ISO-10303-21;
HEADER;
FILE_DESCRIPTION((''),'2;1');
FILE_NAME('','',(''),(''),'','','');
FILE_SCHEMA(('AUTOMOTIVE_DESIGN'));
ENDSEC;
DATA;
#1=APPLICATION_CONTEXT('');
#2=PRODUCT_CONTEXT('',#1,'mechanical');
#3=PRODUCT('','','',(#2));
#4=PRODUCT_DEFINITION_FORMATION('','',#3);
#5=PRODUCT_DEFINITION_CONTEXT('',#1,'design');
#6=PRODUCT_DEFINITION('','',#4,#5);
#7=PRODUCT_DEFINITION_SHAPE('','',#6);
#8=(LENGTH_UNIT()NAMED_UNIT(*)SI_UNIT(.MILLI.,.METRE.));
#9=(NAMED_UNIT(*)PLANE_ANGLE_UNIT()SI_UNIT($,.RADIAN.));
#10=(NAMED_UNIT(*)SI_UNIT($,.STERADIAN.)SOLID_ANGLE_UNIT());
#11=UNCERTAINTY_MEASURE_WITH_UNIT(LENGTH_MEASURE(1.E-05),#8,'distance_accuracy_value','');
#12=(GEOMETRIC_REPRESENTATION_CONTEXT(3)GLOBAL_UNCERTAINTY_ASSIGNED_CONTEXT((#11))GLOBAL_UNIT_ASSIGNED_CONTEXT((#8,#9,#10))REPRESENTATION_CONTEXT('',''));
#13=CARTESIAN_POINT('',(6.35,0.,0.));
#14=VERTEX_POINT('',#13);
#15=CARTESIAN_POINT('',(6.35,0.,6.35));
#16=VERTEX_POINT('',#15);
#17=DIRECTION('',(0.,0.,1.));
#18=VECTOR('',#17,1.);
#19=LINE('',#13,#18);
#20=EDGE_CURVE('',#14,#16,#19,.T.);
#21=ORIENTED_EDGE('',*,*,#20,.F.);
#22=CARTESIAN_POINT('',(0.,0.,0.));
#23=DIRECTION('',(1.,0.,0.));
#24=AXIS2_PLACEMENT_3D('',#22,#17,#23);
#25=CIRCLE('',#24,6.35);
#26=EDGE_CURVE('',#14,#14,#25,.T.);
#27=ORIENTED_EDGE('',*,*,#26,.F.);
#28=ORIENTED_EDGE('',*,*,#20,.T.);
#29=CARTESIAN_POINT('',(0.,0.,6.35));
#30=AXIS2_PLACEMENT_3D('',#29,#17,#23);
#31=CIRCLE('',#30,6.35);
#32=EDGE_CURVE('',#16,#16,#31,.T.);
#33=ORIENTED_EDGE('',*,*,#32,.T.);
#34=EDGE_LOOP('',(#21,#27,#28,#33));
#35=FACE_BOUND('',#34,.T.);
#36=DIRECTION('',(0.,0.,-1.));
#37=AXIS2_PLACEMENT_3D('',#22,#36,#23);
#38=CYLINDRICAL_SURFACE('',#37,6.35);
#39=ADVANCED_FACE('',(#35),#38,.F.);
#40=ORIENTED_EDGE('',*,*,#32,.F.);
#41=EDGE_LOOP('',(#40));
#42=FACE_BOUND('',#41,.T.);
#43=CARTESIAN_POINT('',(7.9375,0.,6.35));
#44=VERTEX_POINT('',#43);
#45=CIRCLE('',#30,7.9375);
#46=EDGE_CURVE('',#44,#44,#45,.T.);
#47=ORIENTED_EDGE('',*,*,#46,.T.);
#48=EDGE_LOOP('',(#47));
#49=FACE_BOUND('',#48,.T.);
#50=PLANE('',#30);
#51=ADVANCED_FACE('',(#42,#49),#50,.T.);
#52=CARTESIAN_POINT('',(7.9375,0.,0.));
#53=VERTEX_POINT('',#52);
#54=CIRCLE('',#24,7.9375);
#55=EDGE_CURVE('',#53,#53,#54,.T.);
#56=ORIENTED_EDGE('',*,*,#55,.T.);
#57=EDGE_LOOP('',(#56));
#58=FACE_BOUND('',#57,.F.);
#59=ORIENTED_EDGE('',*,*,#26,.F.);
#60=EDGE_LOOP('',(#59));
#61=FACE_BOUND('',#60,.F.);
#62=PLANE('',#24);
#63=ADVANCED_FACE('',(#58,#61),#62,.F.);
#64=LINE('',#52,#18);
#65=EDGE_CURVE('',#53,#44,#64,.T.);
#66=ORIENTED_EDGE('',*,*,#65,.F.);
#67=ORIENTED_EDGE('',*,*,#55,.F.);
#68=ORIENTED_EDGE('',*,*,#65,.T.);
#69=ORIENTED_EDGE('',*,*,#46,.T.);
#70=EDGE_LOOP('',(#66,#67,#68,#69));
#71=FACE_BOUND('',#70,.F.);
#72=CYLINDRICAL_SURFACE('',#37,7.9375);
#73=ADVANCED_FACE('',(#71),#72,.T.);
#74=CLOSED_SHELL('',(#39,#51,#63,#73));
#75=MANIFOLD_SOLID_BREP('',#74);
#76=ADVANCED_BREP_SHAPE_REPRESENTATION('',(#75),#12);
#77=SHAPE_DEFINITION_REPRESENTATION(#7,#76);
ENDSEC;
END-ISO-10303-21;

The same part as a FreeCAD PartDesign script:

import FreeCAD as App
import Part
import Sketcher

V = App.Vector
Q = App.Units.Quantity

doc = App.newDocument("Part")
body = doc.addObject("PartDesign::Body", "Body")

# Sketch on XY plane
sketch1 = body.newObject("Sketcher::SketchObject", "Sketch")
sketch1.AttachmentSupport = (doc.getObject("XY_Plane"), [""])
sketch1.MapMode = "FlatFace"
sketch1.addGeometry([
    Part.Circle(V(0, 0, 0), V(0, 0, 1), 8),
    Part.Circle(V(0, 0, 0), V(0, 0, 1), 6),
], False)
sketch1.addConstraint([
    Sketcher.Constraint("Coincident", 0, 3, -1, 1),
    Sketcher.Constraint("Coincident", 1, 3, -1, 1),
    Sketcher.Constraint("Diameter", 1, Q("0.5 in")),
    Sketcher.Constraint("Diameter", 0, Q("0.625 in")),
])
pad1 = body.newObject("PartDesign::Pad", "Pad")
pad1.Profile = sketch1
pad1.Length = Q("0.25 in")

doc.recompute()
